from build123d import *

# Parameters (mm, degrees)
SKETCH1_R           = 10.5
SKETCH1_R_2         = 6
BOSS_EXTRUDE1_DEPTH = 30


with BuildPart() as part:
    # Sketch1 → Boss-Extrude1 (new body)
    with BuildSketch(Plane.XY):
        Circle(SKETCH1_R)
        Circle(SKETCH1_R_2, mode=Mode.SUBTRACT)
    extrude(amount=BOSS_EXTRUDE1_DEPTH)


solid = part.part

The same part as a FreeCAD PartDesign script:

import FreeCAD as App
import Part
import Sketcher

doc = App.newDocument("Part")
body = doc.addObject("PartDesign::Body", "Body")

# Sketch on XY plane
sketch1 = body.newObject("Sketcher::SketchObject", "Sketch")
sketch1.AttachmentSupport = (doc.getObject("XY_Plane"), [""])
sketch1.MapMode = "FlatFace"
sketch1.addGeometry([
    Part.Circle(App.Vector(0, 0, 0), App.Vector(0, 0, 1), 10),
    Part.Circle(App.Vector(0, 0, 0), App.Vector(0, 0, 1), 6),
], False)
sketch1.addConstraint([
    Sketcher.Constraint("Coincident", 0, 3, -1, 1),
    Sketcher.Constraint("Coincident", 1, 3, -1, 1),
    Sketcher.Constraint("Diameter", 0, 21.0),
    Sketcher.Constraint("Diameter", 1, 12.0),
])
pad1 = body.newObject("PartDesign::Pad", "Pad")
pad1.Profile = sketch1
pad1.Length = 30

doc.recompute()
